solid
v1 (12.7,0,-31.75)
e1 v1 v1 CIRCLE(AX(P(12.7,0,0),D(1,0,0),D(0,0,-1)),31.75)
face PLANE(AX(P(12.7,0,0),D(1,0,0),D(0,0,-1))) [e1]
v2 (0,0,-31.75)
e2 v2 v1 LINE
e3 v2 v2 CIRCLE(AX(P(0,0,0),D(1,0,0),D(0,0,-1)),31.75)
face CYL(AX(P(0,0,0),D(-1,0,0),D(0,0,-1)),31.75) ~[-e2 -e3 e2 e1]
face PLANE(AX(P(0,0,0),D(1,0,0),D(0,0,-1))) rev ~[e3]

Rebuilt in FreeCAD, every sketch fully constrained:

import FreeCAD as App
import Part
import Sketcher
Q = App.Units.Quantity

doc = App.newDocument("Part")
params = doc.addObject("Spreadsheet::Sheet", "Params")
for row, (alias, value) in enumerate([
    ("sketch1_diameter", "2.5 in"),
    ("pad1_length", "0.5 in"),
], start=1):
    params.set(f"A{row}", alias)
    params.set(f"B{row}", "=" + value)
    params.setAlias(f"B{row}", alias)

body = doc.addObject("PartDesign::Body", "Body")

sketch1 = body.newObject("Sketcher::SketchObject", "Sketch")
sketch1.AttachmentSupport = (doc.getObject("YZ_Plane"), [""])
sketch1.MapMode = "FlatFace"
sketch1.addGeometry(Part.Circle(App.Vector(0, 0, 0), App.Vector(0, 0, 1), 32), False)
sketch1.addConstraint(Sketcher.Constraint("Coincident", 0, 3, -1, 1))
sketch1.addConstraint(Sketcher.Constraint("Diameter", 0, Q("2.5 in")))
sketch1.setExpression("Constraints[1]", "Params.sketch1_diameter")
pad1 = body.newObject("PartDesign::Pad", "Pad")
pad1.Profile = sketch1
pad1.setExpression("Length", "Params.pad1_length")

doc.recompute()
